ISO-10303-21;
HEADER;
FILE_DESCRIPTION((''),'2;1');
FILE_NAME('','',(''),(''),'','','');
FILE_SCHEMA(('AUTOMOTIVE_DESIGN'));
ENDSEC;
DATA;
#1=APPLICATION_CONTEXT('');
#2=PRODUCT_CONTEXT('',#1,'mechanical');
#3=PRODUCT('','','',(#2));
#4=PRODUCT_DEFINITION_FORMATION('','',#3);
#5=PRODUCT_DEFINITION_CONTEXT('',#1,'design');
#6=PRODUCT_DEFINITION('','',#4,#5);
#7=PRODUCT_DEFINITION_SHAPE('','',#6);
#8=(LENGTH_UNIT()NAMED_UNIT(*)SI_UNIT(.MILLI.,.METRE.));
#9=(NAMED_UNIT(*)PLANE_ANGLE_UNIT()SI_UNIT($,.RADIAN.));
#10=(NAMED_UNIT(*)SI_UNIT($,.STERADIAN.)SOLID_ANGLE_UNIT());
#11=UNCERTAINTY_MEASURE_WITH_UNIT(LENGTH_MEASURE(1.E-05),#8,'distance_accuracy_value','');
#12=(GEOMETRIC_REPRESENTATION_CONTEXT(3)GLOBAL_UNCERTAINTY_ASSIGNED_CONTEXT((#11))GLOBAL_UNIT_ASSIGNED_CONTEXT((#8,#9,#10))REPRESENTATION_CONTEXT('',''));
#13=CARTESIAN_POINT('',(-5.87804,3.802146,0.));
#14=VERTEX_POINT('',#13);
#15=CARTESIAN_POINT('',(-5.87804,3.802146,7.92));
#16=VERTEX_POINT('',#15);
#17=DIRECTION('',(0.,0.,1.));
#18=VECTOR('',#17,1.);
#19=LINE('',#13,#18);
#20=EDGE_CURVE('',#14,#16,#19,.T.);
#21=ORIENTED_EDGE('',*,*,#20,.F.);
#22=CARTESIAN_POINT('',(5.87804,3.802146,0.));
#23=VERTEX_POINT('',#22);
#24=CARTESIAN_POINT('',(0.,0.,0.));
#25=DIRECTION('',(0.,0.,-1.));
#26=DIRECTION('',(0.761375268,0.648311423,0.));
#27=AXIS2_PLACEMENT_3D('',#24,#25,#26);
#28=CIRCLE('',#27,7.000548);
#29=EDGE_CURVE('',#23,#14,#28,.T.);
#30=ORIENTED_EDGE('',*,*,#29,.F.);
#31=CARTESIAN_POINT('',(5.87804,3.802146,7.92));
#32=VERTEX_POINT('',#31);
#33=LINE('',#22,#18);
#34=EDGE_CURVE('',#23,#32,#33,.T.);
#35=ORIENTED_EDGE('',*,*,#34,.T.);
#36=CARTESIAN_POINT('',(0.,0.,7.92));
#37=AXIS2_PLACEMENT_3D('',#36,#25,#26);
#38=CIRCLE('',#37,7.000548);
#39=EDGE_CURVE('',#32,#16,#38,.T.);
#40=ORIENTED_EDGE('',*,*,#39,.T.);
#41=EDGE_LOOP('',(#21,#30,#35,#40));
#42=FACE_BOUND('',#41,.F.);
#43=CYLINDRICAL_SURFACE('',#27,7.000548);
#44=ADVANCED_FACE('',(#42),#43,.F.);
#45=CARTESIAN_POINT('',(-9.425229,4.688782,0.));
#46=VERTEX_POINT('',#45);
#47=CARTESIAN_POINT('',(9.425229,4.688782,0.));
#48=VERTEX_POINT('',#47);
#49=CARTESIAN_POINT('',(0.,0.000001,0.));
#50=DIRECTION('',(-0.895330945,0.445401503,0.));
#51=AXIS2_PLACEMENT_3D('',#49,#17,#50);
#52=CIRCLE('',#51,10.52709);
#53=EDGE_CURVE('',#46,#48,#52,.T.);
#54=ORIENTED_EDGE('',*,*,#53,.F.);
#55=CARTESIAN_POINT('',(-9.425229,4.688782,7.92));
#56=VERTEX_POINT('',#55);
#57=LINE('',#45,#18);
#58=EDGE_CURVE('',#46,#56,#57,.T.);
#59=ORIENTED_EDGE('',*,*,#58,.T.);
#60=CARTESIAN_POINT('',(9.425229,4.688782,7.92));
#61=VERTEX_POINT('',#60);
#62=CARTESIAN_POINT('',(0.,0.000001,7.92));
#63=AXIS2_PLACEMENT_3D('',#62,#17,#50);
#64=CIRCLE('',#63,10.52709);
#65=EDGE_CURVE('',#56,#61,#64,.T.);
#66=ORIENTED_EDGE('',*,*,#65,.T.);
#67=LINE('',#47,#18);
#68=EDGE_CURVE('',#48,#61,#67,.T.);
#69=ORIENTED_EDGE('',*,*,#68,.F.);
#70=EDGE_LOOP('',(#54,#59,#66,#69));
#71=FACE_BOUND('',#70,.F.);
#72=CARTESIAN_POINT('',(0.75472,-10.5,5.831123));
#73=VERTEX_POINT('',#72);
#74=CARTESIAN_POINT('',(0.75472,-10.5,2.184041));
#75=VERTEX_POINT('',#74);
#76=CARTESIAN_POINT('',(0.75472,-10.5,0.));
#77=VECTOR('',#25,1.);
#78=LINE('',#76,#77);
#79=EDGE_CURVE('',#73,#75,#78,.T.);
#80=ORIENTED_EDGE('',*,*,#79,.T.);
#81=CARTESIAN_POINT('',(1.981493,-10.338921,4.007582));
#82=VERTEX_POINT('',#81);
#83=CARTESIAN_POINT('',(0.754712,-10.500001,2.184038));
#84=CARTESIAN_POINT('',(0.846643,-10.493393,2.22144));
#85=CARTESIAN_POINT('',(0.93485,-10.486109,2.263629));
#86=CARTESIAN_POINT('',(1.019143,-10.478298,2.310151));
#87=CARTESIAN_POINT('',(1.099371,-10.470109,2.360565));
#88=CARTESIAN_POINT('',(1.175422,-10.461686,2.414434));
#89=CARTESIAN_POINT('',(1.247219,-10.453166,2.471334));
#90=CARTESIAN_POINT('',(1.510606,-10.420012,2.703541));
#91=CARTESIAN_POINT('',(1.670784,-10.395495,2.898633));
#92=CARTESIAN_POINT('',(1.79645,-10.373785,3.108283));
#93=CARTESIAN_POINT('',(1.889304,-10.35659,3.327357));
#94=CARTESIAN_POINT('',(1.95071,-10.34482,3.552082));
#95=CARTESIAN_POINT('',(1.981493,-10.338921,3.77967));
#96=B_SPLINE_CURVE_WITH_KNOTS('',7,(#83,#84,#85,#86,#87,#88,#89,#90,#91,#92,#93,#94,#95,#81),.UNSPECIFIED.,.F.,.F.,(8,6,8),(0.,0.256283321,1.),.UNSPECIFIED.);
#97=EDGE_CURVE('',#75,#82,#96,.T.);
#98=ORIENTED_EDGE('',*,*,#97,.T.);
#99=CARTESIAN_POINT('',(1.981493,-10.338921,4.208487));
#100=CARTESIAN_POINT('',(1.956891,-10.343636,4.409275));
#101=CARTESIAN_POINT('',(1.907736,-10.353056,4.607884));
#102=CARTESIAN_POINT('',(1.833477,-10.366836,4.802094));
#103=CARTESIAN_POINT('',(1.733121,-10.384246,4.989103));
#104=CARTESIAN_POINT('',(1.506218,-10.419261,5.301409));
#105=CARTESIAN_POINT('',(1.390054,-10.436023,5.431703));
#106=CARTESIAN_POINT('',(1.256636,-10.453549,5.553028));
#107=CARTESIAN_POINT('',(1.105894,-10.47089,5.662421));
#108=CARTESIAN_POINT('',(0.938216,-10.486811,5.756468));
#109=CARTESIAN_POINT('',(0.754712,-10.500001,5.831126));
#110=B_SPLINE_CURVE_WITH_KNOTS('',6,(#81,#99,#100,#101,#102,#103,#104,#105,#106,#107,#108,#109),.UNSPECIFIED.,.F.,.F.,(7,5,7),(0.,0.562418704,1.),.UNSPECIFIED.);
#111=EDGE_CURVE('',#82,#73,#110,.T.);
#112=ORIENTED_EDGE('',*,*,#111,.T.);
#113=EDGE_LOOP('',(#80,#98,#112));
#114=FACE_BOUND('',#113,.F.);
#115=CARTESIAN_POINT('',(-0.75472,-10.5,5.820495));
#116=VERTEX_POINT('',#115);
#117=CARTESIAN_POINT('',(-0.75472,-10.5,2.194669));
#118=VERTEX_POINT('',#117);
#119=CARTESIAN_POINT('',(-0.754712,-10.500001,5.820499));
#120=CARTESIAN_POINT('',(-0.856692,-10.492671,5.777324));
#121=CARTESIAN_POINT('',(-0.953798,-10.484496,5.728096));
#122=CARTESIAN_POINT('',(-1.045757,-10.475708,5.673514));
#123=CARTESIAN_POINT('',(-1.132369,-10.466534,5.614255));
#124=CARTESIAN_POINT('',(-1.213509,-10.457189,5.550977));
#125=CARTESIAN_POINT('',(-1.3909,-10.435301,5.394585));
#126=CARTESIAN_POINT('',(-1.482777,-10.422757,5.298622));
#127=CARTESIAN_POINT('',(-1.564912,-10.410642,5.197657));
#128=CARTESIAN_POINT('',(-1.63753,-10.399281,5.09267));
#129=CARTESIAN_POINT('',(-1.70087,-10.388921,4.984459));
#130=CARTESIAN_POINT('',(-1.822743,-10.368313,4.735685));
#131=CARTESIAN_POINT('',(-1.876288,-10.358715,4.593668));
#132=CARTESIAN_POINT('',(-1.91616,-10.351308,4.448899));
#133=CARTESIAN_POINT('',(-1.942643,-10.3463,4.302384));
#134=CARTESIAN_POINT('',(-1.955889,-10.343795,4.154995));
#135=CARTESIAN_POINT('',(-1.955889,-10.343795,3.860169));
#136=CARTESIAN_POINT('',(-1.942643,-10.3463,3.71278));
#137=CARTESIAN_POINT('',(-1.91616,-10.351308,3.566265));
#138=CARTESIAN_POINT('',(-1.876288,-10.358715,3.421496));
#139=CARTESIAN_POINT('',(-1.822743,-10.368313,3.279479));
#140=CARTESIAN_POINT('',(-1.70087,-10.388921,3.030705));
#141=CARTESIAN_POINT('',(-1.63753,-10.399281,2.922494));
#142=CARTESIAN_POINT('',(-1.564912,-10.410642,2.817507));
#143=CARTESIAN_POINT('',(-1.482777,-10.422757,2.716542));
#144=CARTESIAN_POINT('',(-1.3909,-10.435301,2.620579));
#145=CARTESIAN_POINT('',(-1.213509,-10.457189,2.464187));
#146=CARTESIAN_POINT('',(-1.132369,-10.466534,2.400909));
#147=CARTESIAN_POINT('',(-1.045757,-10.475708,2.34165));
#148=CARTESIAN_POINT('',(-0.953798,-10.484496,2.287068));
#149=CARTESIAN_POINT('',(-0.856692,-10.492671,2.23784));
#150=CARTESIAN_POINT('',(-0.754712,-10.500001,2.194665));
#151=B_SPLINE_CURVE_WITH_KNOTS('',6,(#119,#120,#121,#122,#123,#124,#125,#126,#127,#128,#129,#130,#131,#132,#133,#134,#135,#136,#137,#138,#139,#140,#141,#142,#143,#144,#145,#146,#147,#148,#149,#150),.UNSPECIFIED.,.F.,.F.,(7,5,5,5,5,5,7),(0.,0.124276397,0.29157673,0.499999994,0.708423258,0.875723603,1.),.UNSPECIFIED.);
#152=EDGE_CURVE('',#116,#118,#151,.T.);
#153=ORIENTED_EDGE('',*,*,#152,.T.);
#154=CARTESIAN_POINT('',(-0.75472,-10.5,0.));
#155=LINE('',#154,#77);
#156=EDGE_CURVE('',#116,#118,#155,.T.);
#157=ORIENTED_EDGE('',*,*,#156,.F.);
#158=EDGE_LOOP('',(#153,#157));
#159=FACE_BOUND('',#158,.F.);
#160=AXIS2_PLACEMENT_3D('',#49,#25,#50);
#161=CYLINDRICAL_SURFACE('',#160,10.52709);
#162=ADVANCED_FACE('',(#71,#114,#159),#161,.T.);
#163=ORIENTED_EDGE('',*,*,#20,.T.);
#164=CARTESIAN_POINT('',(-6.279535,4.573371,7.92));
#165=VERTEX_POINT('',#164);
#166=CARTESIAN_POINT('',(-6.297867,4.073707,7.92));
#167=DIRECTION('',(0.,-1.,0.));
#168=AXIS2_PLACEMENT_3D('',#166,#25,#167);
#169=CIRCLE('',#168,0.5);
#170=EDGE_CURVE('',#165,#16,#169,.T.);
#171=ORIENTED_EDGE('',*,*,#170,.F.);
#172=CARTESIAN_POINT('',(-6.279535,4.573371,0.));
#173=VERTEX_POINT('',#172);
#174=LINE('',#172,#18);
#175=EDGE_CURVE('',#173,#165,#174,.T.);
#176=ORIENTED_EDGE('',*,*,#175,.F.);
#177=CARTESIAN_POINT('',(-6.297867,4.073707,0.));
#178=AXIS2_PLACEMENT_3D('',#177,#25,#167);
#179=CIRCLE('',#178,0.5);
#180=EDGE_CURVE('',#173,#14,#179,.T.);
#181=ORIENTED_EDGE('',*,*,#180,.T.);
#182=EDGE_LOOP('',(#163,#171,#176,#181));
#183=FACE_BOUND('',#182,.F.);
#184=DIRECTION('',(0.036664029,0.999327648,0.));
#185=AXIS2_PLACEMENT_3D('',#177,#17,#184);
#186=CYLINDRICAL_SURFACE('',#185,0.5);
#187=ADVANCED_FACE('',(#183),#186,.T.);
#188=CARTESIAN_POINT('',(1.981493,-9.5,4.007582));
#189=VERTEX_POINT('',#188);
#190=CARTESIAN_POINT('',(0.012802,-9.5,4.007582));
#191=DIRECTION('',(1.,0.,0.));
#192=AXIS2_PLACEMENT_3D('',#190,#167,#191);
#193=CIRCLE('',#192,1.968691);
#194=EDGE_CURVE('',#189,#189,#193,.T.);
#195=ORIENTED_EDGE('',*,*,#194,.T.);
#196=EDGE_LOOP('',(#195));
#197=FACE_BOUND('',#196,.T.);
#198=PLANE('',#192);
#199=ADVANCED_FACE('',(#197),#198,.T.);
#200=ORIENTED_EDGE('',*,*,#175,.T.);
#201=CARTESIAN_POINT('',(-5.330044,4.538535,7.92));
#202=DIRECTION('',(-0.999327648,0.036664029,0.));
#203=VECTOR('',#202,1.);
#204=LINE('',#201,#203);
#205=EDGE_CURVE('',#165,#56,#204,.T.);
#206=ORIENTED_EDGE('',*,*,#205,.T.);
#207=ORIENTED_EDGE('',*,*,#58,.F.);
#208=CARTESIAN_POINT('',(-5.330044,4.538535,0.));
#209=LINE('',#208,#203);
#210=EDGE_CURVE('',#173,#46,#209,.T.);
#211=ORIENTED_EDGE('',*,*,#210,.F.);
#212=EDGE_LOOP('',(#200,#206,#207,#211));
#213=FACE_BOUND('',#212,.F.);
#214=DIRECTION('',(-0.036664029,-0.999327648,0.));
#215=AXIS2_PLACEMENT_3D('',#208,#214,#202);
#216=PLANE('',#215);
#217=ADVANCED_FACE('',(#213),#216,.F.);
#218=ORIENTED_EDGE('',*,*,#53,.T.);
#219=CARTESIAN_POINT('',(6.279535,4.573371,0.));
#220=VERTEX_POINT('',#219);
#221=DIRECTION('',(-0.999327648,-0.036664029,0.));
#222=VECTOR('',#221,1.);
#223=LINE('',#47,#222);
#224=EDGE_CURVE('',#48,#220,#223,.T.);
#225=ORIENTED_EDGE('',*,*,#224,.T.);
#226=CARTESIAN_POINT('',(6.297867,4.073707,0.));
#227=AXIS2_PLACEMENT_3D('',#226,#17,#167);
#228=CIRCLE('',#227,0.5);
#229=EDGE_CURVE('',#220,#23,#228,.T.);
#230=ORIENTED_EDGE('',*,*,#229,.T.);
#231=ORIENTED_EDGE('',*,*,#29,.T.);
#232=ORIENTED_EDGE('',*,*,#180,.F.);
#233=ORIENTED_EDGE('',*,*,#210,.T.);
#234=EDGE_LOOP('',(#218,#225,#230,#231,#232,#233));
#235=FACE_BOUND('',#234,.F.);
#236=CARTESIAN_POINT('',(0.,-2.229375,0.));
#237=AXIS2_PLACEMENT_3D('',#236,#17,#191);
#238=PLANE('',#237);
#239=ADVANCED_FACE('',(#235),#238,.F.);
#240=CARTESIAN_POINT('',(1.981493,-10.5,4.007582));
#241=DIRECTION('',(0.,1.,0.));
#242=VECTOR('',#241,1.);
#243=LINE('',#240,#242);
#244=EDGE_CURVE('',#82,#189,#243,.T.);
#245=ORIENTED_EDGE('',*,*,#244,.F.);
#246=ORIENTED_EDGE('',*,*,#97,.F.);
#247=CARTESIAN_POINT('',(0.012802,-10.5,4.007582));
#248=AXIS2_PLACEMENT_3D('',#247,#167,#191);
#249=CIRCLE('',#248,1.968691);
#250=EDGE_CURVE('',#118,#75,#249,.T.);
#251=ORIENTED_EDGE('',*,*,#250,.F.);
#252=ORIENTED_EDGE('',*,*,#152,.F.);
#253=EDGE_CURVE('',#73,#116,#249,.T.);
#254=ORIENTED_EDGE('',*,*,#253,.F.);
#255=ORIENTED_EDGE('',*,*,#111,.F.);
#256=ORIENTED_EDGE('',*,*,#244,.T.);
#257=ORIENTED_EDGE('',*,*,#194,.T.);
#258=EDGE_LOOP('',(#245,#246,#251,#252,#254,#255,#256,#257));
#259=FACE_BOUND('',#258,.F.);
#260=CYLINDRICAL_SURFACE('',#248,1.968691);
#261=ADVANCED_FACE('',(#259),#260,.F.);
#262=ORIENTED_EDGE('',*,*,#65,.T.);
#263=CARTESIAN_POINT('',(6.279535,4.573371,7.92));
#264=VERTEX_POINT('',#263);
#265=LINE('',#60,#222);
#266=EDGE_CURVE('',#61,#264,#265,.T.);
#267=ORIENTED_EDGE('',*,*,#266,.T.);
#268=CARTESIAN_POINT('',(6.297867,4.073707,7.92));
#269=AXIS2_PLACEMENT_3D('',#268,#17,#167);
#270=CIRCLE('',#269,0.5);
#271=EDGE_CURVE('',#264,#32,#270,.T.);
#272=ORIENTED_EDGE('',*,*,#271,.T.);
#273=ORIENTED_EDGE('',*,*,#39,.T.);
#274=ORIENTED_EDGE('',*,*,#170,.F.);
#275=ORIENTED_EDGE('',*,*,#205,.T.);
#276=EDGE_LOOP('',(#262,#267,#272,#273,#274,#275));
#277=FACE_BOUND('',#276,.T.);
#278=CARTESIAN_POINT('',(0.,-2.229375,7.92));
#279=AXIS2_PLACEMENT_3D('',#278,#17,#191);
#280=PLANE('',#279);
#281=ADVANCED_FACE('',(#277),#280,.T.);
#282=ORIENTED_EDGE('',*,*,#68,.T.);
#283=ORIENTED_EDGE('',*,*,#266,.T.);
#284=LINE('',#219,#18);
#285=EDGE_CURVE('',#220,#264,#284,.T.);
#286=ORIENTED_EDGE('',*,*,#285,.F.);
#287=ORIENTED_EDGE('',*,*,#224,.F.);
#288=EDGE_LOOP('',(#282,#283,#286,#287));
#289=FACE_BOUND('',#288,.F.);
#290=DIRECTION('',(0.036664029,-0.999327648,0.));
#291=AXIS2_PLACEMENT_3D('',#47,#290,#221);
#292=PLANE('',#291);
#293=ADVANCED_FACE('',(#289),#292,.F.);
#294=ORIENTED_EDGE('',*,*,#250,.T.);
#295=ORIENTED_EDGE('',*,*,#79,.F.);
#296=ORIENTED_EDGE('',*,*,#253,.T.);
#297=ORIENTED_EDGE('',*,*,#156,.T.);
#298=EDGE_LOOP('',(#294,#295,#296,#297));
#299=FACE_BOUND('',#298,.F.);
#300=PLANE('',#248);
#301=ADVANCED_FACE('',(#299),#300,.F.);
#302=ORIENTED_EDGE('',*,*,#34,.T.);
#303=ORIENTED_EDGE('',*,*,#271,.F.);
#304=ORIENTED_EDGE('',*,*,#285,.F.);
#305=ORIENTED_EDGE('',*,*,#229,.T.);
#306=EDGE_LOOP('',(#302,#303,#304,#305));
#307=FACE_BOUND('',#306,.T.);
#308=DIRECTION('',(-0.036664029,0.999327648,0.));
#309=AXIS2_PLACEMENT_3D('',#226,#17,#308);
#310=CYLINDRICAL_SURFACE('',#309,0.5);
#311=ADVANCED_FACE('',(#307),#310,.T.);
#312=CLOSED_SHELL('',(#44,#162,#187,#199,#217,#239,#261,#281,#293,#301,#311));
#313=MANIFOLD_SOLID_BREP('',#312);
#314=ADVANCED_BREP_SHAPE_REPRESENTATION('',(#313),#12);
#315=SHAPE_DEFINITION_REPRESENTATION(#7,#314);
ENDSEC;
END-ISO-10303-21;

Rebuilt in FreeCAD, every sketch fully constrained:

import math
import FreeCAD as App
import Part
import Sketcher


def edges_at(feature, points):
    """Names of the edges that pass closest to the given points."""
    edges = feature.Shape.Edges
    near = lambda p: min(range(len(edges)), key=lambda i: edges[i].distToShape(Part.Vertex(*p))[0])
    return sorted({f"Edge{near(p) + 1}" for p in points})

doc = App.newDocument("Part")
body = doc.addObject("PartDesign::Body", "Body")

# Sketch on XY plane
sketch1 = body.newObject("Sketcher::SketchObject", "Sketch")
sketch1.AttachmentSupport = (doc.getObject("XY_Plane"), [""])
sketch1.MapMode = "FlatFace"
sketch1.addGeometry(Part.LineSegment(App.Vector(-5.3, 4.5, 0), App.Vector(-9.4, 4.7, 0)), False)
sketch1.addGeometry(Part.ArcOfCircle(Part.Circle(App.Vector(0, 0, 0), App.Vector(0, 0, 1), 10.5), math.radians(154), math.radians(386)), False)
sketch1.addGeometry(Part.LineSegment(App.Vector(9.4, 4.7, 0), App.Vector(5.3, 4.5, 0)), False)
sketch1.addGeometry(Part.ArcOfCircle(Part.Circle(App.Vector(0, 0, 0), App.Vector(0, 0, 1), 7), math.radians(140), math.radians(400)), False)
sketch1.addConstraint(Sketcher.Constraint("Coincident", 0, 2, 1, 1))
sketch1.addConstraint(Sketcher.Constraint("Coincident", 1, 2, 2, 1))
sketch1.addConstraint(Sketcher.Constraint("Coincident", 2, 2, 3, 2))
sketch1.addConstraint(Sketcher.Constraint("Coincident", 3, 1, 0, 1))
sketch1.addConstraint(Sketcher.Constraint("Coincident", 1, 3, -1, 1))
sketch1.addConstraint(Sketcher.Constraint("Coincident", 3, 3, -1, 1))
sketch1.addConstraint(Sketcher.Constraint("Horizontal", 0, 2, 1, 2))
sketch1.addConstraint(Sketcher.Constraint("Horizontal", 2, 2, 3, 1))
sketch1.addConstraint(Sketcher.Constraint("Radius", 1, 10.52709))
sketch1.addConstraint(Sketcher.Constraint("Radius", 3, 7.000548))
sketch1.addConstraint(Sketcher.Constraint("Distance", 0, 4.09794))
sketch1.addConstraint(Sketcher.Constraint("DistanceX", 0, 2, -1, 1, 9.425229))
pad1 = body.newObject("PartDesign::Pad", "Pad")
pad1.Profile = sketch1
pad1.Length = 7.92
doc.recompute()

fillet = body.newObject("PartDesign::Fillet", "Fillet")
fillet.Base = (pad1, edges_at(pad1, [(-5.33, 4.539, 3.96), (5.33, 4.539, 3.96)]))
fillet.Radius = 0.5

# Sketch on XZ plane
sketch2 = body.newObject("Sketcher::SketchObject", "Sketch001")
sketch2.AttachmentSupport = (doc.getObject("XZ_Plane"), [""])
sketch2.MapMode = "FlatFace"
sketch2.AttachmentOffset = App.Placement(App.Vector(0, 0, 10.5), App.Rotation())
sketch2.addGeometry(Part.Circle(App.Vector(0, 4, 0), App.Vector(0, 0, 1), 2), False)
sketch2.addConstraint(Sketcher.Constraint("Diameter", 0, 3.937382))
sketch2.addConstraint(Sketcher.Constraint("DistanceX", -1, 1, 0, 3, 0.012802))
sketch2.addConstraint(Sketcher.Constraint("DistanceY", -1, 1, 0, 3, 4.007582))
pocket1 = body.newObject("PartDesign::Pocket", "Pocket")
pocket1.Profile = sketch2
pocket1.Length = 1

doc.recompute()
